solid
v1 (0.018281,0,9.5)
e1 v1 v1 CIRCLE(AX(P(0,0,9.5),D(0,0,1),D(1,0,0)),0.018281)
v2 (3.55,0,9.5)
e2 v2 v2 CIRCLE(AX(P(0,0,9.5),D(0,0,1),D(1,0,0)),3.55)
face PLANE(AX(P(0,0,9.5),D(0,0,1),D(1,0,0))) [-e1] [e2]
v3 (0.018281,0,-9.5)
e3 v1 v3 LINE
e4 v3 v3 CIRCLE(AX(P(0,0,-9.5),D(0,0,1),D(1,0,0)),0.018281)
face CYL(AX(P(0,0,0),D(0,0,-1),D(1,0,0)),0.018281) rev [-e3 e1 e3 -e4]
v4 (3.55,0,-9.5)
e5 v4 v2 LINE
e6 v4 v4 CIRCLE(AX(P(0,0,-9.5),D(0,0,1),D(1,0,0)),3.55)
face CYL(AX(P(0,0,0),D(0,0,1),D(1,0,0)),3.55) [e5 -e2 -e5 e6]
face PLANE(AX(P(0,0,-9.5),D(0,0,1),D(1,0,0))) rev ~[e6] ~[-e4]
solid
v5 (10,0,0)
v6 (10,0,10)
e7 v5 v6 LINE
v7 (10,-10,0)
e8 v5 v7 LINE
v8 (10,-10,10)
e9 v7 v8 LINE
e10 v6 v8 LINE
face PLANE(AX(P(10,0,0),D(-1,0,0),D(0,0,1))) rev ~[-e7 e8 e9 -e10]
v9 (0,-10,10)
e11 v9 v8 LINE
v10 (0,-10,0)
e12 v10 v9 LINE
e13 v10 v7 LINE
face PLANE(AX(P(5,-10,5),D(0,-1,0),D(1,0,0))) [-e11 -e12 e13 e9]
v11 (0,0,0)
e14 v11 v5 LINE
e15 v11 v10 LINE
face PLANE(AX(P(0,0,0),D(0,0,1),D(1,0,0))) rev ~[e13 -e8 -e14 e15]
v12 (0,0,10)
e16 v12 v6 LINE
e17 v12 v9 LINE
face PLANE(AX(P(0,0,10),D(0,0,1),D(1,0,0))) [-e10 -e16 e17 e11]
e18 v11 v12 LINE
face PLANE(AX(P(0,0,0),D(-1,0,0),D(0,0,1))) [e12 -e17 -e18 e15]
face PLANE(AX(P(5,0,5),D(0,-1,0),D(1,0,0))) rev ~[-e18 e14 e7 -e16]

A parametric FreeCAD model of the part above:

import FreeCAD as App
import Part
import Sketcher

V = App.Vector

doc = App.newDocument("Part")
body = doc.addObject("PartDesign::Body", "Body")

# Sketch on XY plane
sketch1 = body.newObject("Sketcher::SketchObject", "Sketch")
sketch1.AttachmentSupport = (doc.getObject("XY_Plane"), [""])
sketch1.MapMode = "FlatFace"
sketch1.addGeometry(Part.Circle(V(0, 0, 0), V(0, 0, 1), 3.55), False)
sketch1.addGeometry(Part.Circle(V(0, 0, 0), V(0, 0, 1), 0.018), False)
sketch1.addConstraint(Sketcher.Constraint("Coincident", 0, 3, -1, 1))
sketch1.addConstraint(Sketcher.Constraint("Coincident", 1, 3, -1, 1))
sketch1.addConstraint(Sketcher.Constraint("Diameter", 0, 7.1))
sketch1.addConstraint(Sketcher.Constraint("Diameter", 1, 0.036562))
pad1 = body.newObject("PartDesign::Pad", "Pad")
pad1.Profile = sketch1
pad1.Length = 19
pad1.Midplane = True
body2 = doc.addObject("PartDesign::Body", "Body001")

# Sketch on XZ plane
sketch2 = body2.newObject("Sketcher::SketchObject", "Sketch001")
sketch2.AttachmentSupport = (doc.getObject("XZ_Plane001"), [""])
sketch2.MapMode = "FlatFace"
sketch2.addGeometry(Part.LineSegment(V(0, 10, 0), V(0, 0, 0)), False)
sketch2.addGeometry(Part.LineSegment(V(0, 0, 0), V(10, 0, 0)), False)
sketch2.addGeometry(Part.LineSegment(V(10, 0, 0), V(10, 10, 0)), False)
sketch2.addGeometry(Part.LineSegment(V(10, 10, 0), V(0, 10, 0)), False)
sketch2.addConstraint(Sketcher.Constraint("Coincident", 0, 2, 1, 1))
sketch2.addConstraint(Sketcher.Constraint("Coincident", 1, 2, 2, 1))
sketch2.addConstraint(Sketcher.Constraint("Coincident", 2, 2, 3, 1))
sketch2.addConstraint(Sketcher.Constraint("Coincident", 3, 2, 0, 1))
sketch2.addConstraint(Sketcher.Constraint("Vertical", 0))
sketch2.addConstraint(Sketcher.Constraint("Horizontal", 1))
sketch2.addConstraint(Sketcher.Constraint("Vertical", 2))
sketch2.addConstraint(Sketcher.Constraint("Horizontal", 3))
sketch2.addConstraint(Sketcher.Constraint("Coincident", 0, 2, -1, 1))
sketch2.addConstraint(Sketcher.Constraint("Equal", 3, 0))
sketch2.addConstraint(Sketcher.Constraint("DistanceX", 1, 1, 1, 2, 10.0))
pad2 = body2.newObject("PartDesign::Pad", "Pad001")
pad2.Profile = sketch2
pad2.Length = 10

doc.recompute()
